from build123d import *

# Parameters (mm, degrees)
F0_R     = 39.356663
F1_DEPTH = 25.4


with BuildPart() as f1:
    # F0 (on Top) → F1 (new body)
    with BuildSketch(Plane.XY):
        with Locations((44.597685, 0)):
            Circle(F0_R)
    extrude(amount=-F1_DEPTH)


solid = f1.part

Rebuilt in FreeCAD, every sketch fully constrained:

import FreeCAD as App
import Part
import Sketcher

V = App.Vector
Q = App.Units.Quantity

doc = App.newDocument("Part")
body = doc.addObject("PartDesign::Body", "Body")

# Sketch on XY plane
sketch1 = doc.addObject("Sketcher::SketchObject", "Sketch")
body.addObject(sketch1)
sketch1.AttachmentSupport = (doc.XY_Plane, [""])
sketch1.MapMode = "FlatFace"
sketch1.addGeometry(Part.Circle(V(44.597685, 0, 0), V(0, 0, 1), 39.356663), False)
sketch1.addConstraint(Sketcher.Constraint("PointOnObject", 0, 3, -1))
sketch1.addConstraint(Sketcher.Constraint("Diameter", 0, 78.713326))
sketch1.addConstraint(Sketcher.Constraint("DistanceX", -1, 1, 0, 3, 44.597685))
pad1 = doc.addObject("PartDesign::Pad", "Pad")
body.addObject(pad1)
pad1.Profile = sketch1
pad1.Length = Q("1 in")
pad1.Reversed = True

doc.recompute()
